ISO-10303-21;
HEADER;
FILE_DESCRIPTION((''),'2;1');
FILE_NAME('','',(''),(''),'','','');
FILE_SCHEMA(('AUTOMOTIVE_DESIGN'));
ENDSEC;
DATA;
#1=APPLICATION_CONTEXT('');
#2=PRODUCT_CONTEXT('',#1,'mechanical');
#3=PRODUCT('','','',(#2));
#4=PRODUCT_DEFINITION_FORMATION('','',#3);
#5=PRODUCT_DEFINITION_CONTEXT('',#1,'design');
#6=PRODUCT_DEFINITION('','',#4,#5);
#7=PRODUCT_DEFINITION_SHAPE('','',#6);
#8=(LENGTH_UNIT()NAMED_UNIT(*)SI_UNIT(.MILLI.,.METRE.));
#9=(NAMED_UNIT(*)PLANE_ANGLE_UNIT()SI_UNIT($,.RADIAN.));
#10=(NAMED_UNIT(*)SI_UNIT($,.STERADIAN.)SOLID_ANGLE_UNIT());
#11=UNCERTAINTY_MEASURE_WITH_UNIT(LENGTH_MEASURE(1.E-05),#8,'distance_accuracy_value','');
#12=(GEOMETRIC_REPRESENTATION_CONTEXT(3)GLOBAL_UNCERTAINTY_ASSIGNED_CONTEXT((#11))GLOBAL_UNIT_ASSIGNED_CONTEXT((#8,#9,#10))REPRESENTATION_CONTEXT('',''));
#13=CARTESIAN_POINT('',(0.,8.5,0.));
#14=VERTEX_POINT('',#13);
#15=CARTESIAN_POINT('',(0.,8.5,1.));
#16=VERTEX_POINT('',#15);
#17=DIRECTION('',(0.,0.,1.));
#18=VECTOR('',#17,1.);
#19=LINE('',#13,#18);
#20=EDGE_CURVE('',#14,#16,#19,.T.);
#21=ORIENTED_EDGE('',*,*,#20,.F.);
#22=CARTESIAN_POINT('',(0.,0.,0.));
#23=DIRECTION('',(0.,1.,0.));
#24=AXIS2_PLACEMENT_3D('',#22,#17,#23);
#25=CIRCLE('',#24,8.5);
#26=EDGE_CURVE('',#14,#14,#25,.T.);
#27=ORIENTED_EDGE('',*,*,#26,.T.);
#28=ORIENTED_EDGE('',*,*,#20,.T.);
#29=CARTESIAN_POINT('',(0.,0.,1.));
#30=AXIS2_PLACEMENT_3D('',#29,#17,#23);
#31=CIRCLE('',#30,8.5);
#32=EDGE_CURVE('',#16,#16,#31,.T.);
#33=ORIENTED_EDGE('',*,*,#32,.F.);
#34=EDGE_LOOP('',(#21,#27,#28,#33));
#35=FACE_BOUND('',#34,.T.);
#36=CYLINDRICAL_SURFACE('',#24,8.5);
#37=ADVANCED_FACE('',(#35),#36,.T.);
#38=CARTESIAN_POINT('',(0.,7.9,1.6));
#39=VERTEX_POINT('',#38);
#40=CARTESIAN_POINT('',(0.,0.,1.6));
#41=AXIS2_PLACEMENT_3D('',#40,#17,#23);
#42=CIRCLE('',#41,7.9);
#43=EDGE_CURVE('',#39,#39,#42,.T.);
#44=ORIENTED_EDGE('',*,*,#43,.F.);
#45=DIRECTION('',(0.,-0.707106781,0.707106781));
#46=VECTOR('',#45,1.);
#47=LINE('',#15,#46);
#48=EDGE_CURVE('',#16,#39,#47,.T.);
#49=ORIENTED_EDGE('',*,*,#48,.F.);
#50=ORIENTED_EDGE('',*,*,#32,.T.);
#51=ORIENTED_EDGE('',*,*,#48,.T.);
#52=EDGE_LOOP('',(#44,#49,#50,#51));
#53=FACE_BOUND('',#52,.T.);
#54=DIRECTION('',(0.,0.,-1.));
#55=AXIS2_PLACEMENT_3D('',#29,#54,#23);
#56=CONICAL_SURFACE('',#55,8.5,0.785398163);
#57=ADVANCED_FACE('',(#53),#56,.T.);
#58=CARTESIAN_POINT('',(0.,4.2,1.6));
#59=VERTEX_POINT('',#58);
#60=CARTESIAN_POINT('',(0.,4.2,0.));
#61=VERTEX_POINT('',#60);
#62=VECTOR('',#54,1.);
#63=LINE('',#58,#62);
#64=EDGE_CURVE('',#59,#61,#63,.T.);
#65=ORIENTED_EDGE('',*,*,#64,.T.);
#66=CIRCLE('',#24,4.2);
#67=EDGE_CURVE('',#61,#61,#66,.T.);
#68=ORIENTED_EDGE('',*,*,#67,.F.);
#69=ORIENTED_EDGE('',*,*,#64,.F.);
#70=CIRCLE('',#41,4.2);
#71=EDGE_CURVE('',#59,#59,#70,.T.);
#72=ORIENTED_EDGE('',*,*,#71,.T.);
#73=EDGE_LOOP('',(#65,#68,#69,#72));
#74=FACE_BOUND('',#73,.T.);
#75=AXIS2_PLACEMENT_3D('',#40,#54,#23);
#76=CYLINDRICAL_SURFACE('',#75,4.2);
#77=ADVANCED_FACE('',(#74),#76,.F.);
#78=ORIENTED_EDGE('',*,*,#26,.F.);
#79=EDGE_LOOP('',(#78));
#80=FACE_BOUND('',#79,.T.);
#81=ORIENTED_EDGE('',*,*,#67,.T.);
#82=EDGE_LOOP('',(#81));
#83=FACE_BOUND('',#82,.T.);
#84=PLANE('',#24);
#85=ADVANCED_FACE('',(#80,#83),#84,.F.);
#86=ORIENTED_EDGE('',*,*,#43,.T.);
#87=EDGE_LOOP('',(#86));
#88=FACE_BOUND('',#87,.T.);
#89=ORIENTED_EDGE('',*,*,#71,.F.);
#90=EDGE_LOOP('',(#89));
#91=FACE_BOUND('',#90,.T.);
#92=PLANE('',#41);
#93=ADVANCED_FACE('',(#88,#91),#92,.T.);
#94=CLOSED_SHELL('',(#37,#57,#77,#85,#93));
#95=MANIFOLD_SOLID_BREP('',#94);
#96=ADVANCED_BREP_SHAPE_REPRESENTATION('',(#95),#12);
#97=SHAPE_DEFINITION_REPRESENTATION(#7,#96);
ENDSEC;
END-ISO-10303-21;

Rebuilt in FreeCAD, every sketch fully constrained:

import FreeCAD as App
import Part
import Sketcher
from FreeCAD import Vector
Q = App.Units.Quantity


def add_polygon(sketch, points):
    """Adds a closed chain of lines whose ends are joined by coincident constraints."""
    first, n = sketch.GeometryCount, len(points)
    for a, b in zip(points, points[1:] + points[:1]):
        sketch.addGeometry(Part.LineSegment(App.Vector(*a, 0), App.Vector(*b, 0)), False)
    for i in range(n):
        sketch.addConstraint(Sketcher.Constraint("Coincident", first + i, 2, first + (i + 1) % n, 1))

doc = App.newDocument("Part")
body = doc.addObject("PartDesign::Body", "Body")

# Sketch on YZ plane
sketch1 = body.newObject("Sketcher::SketchObject", "Sketch")
sketch1.AttachmentSupport = (doc.getObject("YZ_Plane"), [""])
sketch1.MapMode = "FlatFace"
add_polygon(sketch1, [(4.2, 0), (8.5, 0), (8.5, 1), (7.9, 1.6), (4.2, 1.6)])  # lines 0-4
sketch1.addConstraint(Sketcher.Constraint("Horizontal", 0))
sketch1.addConstraint(Sketcher.Constraint("Vertical", 1))
sketch1.addConstraint(Sketcher.Constraint("Horizontal", 3))
sketch1.addConstraint(Sketcher.Constraint("Vertical", 4))
sketch1.addConstraint(Sketcher.Constraint("PointOnObject", 0, 2, -1))
sketch1.addConstraint(Sketcher.Constraint("DistanceY", 1, 1, 1, 2, 1.0))
sketch1.addConstraint(Sketcher.Constraint("Angle", 2, Q("135 deg")))
sketch1.addConstraint(Sketcher.Constraint("DistanceX", 0, 1, 0, 2, 4.3))
sketch1.addConstraint(Sketcher.Constraint("DistanceX", 3, 2, 3, 1, 3.7))
sketch1.addConstraint(Sketcher.Constraint("DistanceX", -1, 1, 0, 2, 8.5))
revolution = body.newObject("PartDesign::Revolution", "Revolution")
revolution.Profile = sketch1
revolution.ReferenceAxis = (sketch1, ["V_Axis"])
revolution.Angle = 360

doc.recompute()
